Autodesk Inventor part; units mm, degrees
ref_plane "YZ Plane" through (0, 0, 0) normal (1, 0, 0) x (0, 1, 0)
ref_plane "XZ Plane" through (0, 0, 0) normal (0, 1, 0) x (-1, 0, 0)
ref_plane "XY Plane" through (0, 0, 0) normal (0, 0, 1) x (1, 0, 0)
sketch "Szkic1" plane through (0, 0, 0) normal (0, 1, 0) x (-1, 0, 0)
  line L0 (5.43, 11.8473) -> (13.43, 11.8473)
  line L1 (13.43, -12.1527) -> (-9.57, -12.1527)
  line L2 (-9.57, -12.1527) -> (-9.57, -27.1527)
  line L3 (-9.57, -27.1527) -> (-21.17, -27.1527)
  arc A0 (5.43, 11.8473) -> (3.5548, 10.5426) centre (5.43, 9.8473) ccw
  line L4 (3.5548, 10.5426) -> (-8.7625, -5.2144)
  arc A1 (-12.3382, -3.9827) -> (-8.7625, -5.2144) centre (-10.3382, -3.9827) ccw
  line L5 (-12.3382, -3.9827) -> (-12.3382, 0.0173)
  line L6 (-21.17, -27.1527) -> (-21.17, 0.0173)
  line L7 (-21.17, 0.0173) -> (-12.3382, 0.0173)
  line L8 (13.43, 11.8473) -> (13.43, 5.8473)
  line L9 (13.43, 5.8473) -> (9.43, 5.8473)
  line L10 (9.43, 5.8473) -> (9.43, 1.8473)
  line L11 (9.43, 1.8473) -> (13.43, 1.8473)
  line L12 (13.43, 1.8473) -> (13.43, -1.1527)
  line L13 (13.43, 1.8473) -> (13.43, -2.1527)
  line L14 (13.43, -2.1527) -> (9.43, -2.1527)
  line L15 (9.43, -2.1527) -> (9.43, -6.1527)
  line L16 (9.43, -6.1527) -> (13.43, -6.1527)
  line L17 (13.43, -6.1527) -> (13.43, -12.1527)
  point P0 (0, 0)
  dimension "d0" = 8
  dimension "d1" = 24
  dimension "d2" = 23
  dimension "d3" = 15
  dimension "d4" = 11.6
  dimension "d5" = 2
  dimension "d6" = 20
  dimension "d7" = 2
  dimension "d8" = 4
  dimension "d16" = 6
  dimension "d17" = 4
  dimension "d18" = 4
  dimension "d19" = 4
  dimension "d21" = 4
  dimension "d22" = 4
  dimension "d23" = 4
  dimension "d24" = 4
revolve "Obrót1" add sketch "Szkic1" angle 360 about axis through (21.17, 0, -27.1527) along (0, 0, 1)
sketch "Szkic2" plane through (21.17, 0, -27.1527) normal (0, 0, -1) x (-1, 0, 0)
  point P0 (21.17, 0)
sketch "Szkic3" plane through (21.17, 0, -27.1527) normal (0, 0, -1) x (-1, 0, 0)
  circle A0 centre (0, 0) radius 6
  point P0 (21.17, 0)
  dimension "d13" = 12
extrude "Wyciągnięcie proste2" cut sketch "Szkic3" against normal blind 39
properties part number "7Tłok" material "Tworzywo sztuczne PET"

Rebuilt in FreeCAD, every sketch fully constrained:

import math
import FreeCAD as App
import Part
import Sketcher

V = App.Vector

doc = App.newDocument("Part")
body = doc.addObject("PartDesign::Body", "Body")

# Sketch on XZ plane
sketch1 = body.newObject("Sketcher::SketchObject", "Sketch")
sketch1.AttachmentSupport = (doc.getObject("XZ_Plane"), [""])
sketch1.MapMode = "FlatFace"
sketch1.addGeometry([
    Part.LineSegment(V(-13.43, 11.8473, 0), V(-5.43, 11.8473, 0)),  # 0
    Part.ArcOfCircle(Part.Circle(V(-5.43, 9.8473, 0), V(0, 0, 1), 2), math.radians(20.344131), math.radians(90)),  # 1
    Part.LineSegment(V(-3.5548, 10.5426, 0), V(8.7625, -5.2144, 0)),  # 2
    Part.ArcOfCircle(Part.Circle(V(10.3382, -3.9827, 0), V(0, 0, 1), 2), math.radians(-141.985817), math.radians(0)),  # 3
    Part.LineSegment(V(12.3382, -3.9827, 0), V(12.3382, 0.0173, 0)),  # 4
    Part.LineSegment(V(12.3382, 0.0173, 0), V(21.17, 0.0173, 0)),  # 5
    Part.LineSegment(V(21.17, 0.0173, 0), V(21.17, -27.1527, 0)),  # 6
    Part.LineSegment(V(21.17, -27.1527, 0), V(9.57, -27.1527, 0)),  # 7
    Part.LineSegment(V(9.57, -27.1527, 0), V(9.57, -12.1527, 0)),  # 8
    Part.LineSegment(V(9.57, -12.1527, 0), V(-13.43, -12.1527, 0)),  # 9
    Part.LineSegment(V(-13.43, -12.1527, 0), V(-13.43, -6.1527, 0)),  # 10
    Part.LineSegment(V(-13.43, -6.1527, 0), V(-9.43, -6.1527, 0)),  # 11
    Part.LineSegment(V(-9.43, -6.1527, 0), V(-9.43, -2.1527, 0)),  # 12
    Part.LineSegment(V(-9.43, -2.1527, 0), V(-13.43, -2.1527, 0)),  # 13
    Part.LineSegment(V(-13.43, -2.1527, 0), V(-13.43, 1.8473, 0)),  # 14
    Part.LineSegment(V(-13.43, 1.8473, 0), V(-9.43, 1.8473, 0)),  # 15
    Part.LineSegment(V(-9.43, 1.8473, 0), V(-9.43, 5.8473, 0)),  # 16
    Part.LineSegment(V(-9.43, 5.8473, 0), V(-13.43, 5.8473, 0)),  # 17
    Part.LineSegment(V(-13.43, 5.8473, 0), V(-13.43, 11.8473, 0)),  # 18
], False)
sketch1.addGeometry(Part.LineSegment(V(21.17, -27.1527, 0), V(21.17, 11.8473, 0)), True)  # axis
sketch1.addConstraint([
    Sketcher.Constraint("Tangent", 0, 2, 1, 2),
    Sketcher.Constraint("Coincident", 1, 1, 2, 1),
    Sketcher.Constraint("Tangent", 2, 2, 3, 1),
    Sketcher.Constraint("Tangent", 3, 2, 4, 1),
    Sketcher.Constraint("Coincident", 4, 2, 5, 1),
    Sketcher.Constraint("Coincident", 5, 2, 6, 1),
    Sketcher.Constraint("Coincident", 6, 2, 7, 1),
    Sketcher.Constraint("Coincident", 7, 2, 8, 1),
    Sketcher.Constraint("Coincident", 8, 2, 9, 1),
    Sketcher.Constraint("Coincident", 9, 2, 10, 1),
    Sketcher.Constraint("Coincident", 10, 2, 11, 1),
    Sketcher.Constraint("Coincident", 11, 2, 12, 1),
    Sketcher.Constraint("Coincident", 12, 2, 13, 1),
    Sketcher.Constraint("Coincident", 13, 2, 14, 1),
    Sketcher.Constraint("Coincident", 14, 2, 15, 1),
    Sketcher.Constraint("Coincident", 15, 2, 16, 1),
    Sketcher.Constraint("Coincident", 16, 2, 17, 1),
    Sketcher.Constraint("Coincident", 17, 2, 18, 1),
    Sketcher.Constraint("Coincident", 18, 2, 0, 1),
    Sketcher.Constraint("Horizontal", 0),
    Sketcher.Constraint("Vertical", 4),
    Sketcher.Constraint("Horizontal", 5),
    Sketcher.Constraint("Vertical", 6),
    Sketcher.Constraint("Horizontal", 7),
    Sketcher.Constraint("Vertical", 8),
    Sketcher.Constraint("Horizontal", 9),
    Sketcher.Constraint("Vertical", 10),
    Sketcher.Constraint("Horizontal", 11),
    Sketcher.Constraint("Vertical", 12),
    Sketcher.Constraint("Horizontal", 13),
    Sketcher.Constraint("Vertical", 14),
    Sketcher.Constraint("Horizontal", 15),
    Sketcher.Constraint("Vertical", 16),
    Sketcher.Constraint("Horizontal", 17),
    Sketcher.Constraint("Vertical", 18),
    Sketcher.Constraint("Vertical", 19),
    Sketcher.Constraint("Coincident", 19, 1, 6, 2),
    Sketcher.Constraint("Equal", 1, 3),
    Sketcher.Constraint("Horizontal", 18, 2, 19, 2),
    Sketcher.Constraint("Vertical", 10, 2, 13, 2),
    Sketcher.Constraint("Vertical", 12, 2, 15, 2),
    Sketcher.Constraint("Vertical", 14, 2, 17, 2),
    Sketcher.Constraint("Equal", 17, 4),
    Sketcher.Constraint("Equal", 4, 12),
    Sketcher.Constraint("Equal", 12, 14),
    Sketcher.Constraint("Equal", 14, 16),
    Sketcher.Constraint("Equal", 10, 18),
    Sketcher.Constraint("Radius", 1, 2.0),
    Sketcher.Constraint("DistanceX", 0, 1, 0, 2, 8.0),
    Sketcher.Constraint("DistanceX", 9, 2, 9, 1, 23.0),
    Sketcher.Constraint("DistanceX", 11, 1, 11, 2, 4.0),
    Sketcher.Constraint("DistanceY", 8, 1, 8, 2, 15.0),
    Sketcher.Constraint("DistanceY", 10, 1, 10, 2, 6.0),
    Sketcher.Constraint("Distance", 2, 20.0),
    Sketcher.Constraint("DistanceX", 7, 2, 7, 1, 11.6),
    Sketcher.Constraint("DistanceY", 6, 2, 6, 1, 27.17),
    Sketcher.Constraint("DistanceX", 1, 3, -1, 1, 5.43),
    Sketcher.Constraint("DistanceX", 5, 1, 5, 2, 8.8318),
    Sketcher.Constraint("DistanceY", -1, 1, 1, 3, 9.8473),
])
revolution = body.newObject("PartDesign::Revolution", "Revolution")
revolution.Profile = sketch1
revolution.ReferenceAxis = (sketch1, ["Axis0"])
revolution.Angle = 360

# Sketch on XY plane
sketch2 = body.newObject("Sketcher::SketchObject", "Sketch001")
sketch2.AttachmentSupport = (doc.getObject("XY_Plane"), [""])
sketch2.MapMode = "FlatFace"
sketch2.AttachmentOffset = App.Placement(V(0, 0, -27.1527), App.Rotation())
sketch2.addGeometry(Part.Circle(V(21.17, 0, 0), V(0, 0, 1), 6), False)
sketch2.addConstraint([
    Sketcher.Constraint("PointOnObject", 0, 3, -1),
    Sketcher.Constraint("Diameter", 0, 12.0),
    Sketcher.Constraint("DistanceX", -1, 1, 0, 3, 21.17),
])
pocket1 = body.newObject("PartDesign::Pocket", "Pocket")
pocket1.Profile = sketch2
pocket1.Length = 39
pocket1.Reversed = True

doc.recompute()
